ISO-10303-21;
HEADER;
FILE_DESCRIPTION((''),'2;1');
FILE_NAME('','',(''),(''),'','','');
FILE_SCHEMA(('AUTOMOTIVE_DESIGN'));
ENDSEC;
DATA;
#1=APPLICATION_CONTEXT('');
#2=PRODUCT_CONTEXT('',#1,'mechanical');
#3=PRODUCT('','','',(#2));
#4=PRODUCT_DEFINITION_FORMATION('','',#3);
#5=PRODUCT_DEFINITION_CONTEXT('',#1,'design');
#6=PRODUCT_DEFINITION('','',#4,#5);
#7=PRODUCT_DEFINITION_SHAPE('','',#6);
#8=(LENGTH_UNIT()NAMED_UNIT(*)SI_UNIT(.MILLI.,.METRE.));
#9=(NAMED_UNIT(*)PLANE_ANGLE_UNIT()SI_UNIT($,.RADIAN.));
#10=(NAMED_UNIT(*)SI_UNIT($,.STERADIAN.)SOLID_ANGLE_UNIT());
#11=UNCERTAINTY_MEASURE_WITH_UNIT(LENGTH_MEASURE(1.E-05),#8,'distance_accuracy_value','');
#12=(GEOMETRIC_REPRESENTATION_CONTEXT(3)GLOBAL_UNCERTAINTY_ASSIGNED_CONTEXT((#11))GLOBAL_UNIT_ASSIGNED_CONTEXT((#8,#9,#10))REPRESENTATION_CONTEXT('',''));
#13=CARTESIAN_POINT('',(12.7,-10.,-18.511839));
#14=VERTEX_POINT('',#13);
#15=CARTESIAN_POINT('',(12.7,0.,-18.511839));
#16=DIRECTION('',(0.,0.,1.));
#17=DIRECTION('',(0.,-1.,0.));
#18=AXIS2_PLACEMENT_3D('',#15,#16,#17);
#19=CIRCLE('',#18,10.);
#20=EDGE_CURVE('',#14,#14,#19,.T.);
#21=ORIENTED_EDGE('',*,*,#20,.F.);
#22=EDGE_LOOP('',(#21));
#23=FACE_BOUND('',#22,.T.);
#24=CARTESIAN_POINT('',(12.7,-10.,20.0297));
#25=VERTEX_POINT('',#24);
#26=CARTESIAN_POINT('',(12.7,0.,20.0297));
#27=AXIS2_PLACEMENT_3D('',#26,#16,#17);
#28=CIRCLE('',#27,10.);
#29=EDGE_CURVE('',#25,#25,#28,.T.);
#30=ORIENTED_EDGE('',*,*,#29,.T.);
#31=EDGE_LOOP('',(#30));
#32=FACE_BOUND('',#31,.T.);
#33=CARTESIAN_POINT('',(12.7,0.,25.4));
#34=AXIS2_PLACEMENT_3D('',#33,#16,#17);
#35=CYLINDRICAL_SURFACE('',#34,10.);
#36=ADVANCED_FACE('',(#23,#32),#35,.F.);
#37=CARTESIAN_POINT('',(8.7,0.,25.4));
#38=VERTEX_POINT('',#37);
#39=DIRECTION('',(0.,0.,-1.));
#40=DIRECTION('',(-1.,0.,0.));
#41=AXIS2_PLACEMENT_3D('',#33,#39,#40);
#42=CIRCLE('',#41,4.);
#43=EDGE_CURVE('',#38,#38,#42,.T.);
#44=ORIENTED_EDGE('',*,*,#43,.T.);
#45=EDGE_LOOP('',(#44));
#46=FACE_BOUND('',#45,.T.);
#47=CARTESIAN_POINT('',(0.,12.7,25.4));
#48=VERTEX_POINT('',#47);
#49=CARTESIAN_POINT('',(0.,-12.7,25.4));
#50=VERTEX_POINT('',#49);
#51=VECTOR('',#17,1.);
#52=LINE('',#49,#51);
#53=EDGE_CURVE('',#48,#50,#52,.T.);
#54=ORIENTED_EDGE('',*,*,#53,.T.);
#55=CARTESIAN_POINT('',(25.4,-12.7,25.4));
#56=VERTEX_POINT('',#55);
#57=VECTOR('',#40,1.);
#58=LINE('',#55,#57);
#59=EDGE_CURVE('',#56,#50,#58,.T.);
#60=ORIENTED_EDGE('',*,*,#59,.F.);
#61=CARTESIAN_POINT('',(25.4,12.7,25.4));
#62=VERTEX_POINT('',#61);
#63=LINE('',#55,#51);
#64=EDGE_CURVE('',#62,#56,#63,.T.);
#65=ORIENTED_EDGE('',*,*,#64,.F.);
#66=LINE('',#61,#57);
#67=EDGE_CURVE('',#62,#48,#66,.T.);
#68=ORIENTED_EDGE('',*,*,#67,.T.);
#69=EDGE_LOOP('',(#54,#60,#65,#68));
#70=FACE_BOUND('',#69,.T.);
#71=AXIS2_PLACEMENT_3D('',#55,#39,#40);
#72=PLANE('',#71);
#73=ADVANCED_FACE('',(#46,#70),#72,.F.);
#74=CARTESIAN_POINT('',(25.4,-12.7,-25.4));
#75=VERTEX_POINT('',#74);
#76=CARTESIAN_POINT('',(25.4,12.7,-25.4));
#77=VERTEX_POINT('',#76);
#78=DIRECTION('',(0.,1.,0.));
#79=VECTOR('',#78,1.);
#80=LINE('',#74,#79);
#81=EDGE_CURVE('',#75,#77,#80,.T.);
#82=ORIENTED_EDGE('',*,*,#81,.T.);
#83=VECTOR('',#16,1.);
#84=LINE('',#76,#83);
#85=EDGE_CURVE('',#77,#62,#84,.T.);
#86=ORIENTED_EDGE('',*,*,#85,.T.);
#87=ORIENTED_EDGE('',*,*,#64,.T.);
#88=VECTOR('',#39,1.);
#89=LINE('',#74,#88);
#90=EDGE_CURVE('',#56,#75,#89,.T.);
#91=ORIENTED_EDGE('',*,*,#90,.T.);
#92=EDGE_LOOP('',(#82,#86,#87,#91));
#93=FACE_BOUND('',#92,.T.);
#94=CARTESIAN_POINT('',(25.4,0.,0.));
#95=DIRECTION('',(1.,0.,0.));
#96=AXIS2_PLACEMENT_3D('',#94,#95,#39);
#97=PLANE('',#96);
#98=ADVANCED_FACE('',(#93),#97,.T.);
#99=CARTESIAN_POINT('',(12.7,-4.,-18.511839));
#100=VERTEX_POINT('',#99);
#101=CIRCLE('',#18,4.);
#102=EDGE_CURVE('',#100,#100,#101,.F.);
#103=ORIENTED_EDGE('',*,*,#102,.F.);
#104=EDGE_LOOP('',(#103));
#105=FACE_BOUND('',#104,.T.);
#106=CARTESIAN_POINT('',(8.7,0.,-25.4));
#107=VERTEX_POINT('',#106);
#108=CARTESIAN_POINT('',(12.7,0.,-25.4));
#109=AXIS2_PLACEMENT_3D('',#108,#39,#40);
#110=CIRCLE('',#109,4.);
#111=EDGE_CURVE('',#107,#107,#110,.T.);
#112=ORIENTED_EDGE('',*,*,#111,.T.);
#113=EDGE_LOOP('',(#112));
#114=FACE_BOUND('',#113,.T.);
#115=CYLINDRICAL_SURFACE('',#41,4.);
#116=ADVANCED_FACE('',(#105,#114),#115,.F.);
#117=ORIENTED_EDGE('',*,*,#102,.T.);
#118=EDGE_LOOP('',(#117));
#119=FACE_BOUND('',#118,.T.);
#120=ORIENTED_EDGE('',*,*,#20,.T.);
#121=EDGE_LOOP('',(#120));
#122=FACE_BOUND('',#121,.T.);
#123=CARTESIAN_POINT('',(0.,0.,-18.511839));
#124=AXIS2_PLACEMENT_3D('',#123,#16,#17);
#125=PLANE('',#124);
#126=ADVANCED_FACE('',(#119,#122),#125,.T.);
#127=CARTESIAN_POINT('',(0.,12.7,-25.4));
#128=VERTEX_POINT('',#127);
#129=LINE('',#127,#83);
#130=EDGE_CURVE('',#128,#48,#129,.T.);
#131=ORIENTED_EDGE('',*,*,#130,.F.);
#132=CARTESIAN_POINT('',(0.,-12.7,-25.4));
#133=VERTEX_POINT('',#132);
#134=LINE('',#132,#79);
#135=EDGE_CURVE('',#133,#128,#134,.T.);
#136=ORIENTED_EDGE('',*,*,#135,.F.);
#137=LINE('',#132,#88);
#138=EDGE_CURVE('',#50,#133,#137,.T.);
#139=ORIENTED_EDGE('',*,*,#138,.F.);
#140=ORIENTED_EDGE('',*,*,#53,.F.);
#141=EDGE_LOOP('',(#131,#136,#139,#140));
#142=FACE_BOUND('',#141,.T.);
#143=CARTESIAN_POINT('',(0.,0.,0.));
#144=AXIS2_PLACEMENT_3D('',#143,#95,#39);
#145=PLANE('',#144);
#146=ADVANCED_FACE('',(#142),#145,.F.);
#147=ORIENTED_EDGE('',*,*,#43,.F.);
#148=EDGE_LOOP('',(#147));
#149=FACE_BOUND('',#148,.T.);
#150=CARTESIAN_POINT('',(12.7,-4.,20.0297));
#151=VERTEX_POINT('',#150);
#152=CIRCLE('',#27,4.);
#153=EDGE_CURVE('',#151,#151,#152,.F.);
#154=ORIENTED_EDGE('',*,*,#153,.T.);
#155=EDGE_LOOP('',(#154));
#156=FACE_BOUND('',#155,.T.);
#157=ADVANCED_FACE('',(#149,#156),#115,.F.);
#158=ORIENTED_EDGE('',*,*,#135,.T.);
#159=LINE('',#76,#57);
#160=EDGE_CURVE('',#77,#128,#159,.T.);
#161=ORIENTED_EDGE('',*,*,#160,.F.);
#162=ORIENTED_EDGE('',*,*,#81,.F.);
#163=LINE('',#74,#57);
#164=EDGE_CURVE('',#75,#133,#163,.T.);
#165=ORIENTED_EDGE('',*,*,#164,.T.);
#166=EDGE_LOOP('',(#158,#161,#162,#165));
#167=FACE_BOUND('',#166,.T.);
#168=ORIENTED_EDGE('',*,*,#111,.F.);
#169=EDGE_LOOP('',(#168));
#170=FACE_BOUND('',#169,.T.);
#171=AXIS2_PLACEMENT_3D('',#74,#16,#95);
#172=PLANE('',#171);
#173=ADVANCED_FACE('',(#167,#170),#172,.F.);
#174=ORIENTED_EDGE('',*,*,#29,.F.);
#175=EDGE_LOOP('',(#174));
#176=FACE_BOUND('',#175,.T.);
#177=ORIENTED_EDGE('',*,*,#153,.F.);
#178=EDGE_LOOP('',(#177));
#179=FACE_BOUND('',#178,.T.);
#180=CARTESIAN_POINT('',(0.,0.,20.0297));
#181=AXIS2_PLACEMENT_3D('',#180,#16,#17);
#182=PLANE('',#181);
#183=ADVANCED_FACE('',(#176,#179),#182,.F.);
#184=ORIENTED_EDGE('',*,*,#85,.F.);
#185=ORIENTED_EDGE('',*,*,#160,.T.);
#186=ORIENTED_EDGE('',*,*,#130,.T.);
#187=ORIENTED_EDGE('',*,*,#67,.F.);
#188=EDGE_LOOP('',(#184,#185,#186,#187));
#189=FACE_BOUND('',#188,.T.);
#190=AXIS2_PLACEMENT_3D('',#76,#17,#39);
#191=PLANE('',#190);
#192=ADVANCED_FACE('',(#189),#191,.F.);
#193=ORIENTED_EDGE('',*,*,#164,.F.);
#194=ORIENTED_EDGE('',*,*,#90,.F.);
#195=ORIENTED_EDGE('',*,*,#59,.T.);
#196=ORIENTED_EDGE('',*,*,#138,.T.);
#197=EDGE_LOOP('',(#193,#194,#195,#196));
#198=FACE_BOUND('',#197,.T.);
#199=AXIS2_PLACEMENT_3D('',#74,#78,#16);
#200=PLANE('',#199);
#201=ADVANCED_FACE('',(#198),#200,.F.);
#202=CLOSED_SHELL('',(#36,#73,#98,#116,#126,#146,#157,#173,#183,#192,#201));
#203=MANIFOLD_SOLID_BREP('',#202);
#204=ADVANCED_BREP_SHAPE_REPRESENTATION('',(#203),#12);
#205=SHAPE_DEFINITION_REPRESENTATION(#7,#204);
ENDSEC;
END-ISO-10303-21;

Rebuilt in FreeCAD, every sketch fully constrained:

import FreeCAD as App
import Part
import Sketcher
from FreeCAD import Vector


def add_polygon(sketch, points):
    """Adds a closed chain of lines whose ends are joined by coincident constraints."""
    first, n = sketch.GeometryCount, len(points)
    for a, b in zip(points, points[1:] + points[:1]):
        sketch.addGeometry(Part.LineSegment(App.Vector(*a, 0), App.Vector(*b, 0)), False)
    for i in range(n):
        sketch.addConstraint(Sketcher.Constraint("Coincident", first + i, 2, first + (i + 1) % n, 1))

doc = App.newDocument("Part")
body = doc.addObject("PartDesign::Body", "Body")

# Sketch on YZ plane
sketch1 = body.newObject("Sketcher::SketchObject", "Sketch")
sketch1.AttachmentSupport = (doc.getObject("YZ_Plane"), [""])
sketch1.MapMode = "FlatFace"
add_polygon(sketch1, [(13, 25), (-13, 25), (-13, -25), (13, -25)])  # lines 0-3
sketch1.addConstraint(Sketcher.Constraint("Horizontal", 0))
sketch1.addConstraint(Sketcher.Constraint("Vertical", 1))
sketch1.addConstraint(Sketcher.Constraint("Horizontal", 2))
sketch1.addConstraint(Sketcher.Constraint("Vertical", 3))
sketch1.addConstraint(Sketcher.Constraint("Symmetric", 0, 2, 2, 2, -1, 1))
sketch1.addConstraint(Sketcher.Constraint("DistanceX", 0, 2, 0, 1, 25.4))
sketch1.addConstraint(Sketcher.Constraint("DistanceY", 1, 2, 1, 1, 50.8))
pad1 = body.newObject("PartDesign::Pad", "Pad")
pad1.Profile = sketch1
pad1.Length = 25.4

# Sketch on XY plane
sketch2 = body.newObject("Sketcher::SketchObject", "Sketch001")
sketch2.AttachmentSupport = (doc.getObject("XY_Plane"), [""])
sketch2.MapMode = "FlatFace"
sketch2.AttachmentOffset = App.Placement(Vector(0, 0, -25.4), App.Rotation())
sketch2.addGeometry(Part.Circle(Vector(12.7, 0, 0), Vector(0, 0, 1), 4), False)
sketch2.addConstraint(Sketcher.Constraint("PointOnObject", 0, 3, -1))
sketch2.addConstraint(Sketcher.Constraint("Diameter", 0, 8.0))
sketch2.addConstraint(Sketcher.Constraint("DistanceX", -1, 1, 0, 3, 12.7))
pocket1 = body.newObject("PartDesign::Pocket", "Pocket")
pocket1.Profile = sketch2
pocket1.Length = 50.8
pocket1.Reversed = True

# Sketch on XZ plane
sketch3 = body.newObject("Sketcher::SketchObject", "Sketch002")
sketch3.AttachmentSupport = (doc.getObject("XZ_Plane"), [""])
sketch3.MapMode = "FlatFace"
add_polygon(sketch3, [(13, -19), (13, 20), (23, 20), (23, -19)])  # lines 0-3
sketch3.addGeometry(Part.LineSegment(Vector(13, 20, 0), Vector(13, -19, 0)), True)  # axis
sketch3.addConstraint(Sketcher.Constraint("Vertical", 0))
sketch3.addConstraint(Sketcher.Constraint("Horizontal", 1))
sketch3.addConstraint(Sketcher.Constraint("Vertical", 2))
sketch3.addConstraint(Sketcher.Constraint("Horizontal", 3))
sketch3.addConstraint(Sketcher.Constraint("Vertical", 4))
sketch3.addConstraint(Sketcher.Constraint("Coincident", 4, 1, 0, 2))
sketch3.addConstraint(Sketcher.Constraint("Horizontal", 2, 2, 4, 2))
sketch3.addConstraint(Sketcher.Constraint("DistanceX", 1, 1, 1, 2, 10.0))
sketch3.addConstraint(Sketcher.Constraint("DistanceX", -1, 1, 0, 2, 12.7))
sketch3.addConstraint(Sketcher.Constraint("DistanceY", 0, 1, 0, 2, 38.541538))
sketch3.addConstraint(Sketcher.Constraint("DistanceY", -1, 1, 0, 2, 20.0297))
groove = body.newObject("PartDesign::Groove", "Groove")
groove.Profile = sketch3
groove.ReferenceAxis = (sketch3, ["Axis0"])
groove.Angle = 360

doc.recompute()
